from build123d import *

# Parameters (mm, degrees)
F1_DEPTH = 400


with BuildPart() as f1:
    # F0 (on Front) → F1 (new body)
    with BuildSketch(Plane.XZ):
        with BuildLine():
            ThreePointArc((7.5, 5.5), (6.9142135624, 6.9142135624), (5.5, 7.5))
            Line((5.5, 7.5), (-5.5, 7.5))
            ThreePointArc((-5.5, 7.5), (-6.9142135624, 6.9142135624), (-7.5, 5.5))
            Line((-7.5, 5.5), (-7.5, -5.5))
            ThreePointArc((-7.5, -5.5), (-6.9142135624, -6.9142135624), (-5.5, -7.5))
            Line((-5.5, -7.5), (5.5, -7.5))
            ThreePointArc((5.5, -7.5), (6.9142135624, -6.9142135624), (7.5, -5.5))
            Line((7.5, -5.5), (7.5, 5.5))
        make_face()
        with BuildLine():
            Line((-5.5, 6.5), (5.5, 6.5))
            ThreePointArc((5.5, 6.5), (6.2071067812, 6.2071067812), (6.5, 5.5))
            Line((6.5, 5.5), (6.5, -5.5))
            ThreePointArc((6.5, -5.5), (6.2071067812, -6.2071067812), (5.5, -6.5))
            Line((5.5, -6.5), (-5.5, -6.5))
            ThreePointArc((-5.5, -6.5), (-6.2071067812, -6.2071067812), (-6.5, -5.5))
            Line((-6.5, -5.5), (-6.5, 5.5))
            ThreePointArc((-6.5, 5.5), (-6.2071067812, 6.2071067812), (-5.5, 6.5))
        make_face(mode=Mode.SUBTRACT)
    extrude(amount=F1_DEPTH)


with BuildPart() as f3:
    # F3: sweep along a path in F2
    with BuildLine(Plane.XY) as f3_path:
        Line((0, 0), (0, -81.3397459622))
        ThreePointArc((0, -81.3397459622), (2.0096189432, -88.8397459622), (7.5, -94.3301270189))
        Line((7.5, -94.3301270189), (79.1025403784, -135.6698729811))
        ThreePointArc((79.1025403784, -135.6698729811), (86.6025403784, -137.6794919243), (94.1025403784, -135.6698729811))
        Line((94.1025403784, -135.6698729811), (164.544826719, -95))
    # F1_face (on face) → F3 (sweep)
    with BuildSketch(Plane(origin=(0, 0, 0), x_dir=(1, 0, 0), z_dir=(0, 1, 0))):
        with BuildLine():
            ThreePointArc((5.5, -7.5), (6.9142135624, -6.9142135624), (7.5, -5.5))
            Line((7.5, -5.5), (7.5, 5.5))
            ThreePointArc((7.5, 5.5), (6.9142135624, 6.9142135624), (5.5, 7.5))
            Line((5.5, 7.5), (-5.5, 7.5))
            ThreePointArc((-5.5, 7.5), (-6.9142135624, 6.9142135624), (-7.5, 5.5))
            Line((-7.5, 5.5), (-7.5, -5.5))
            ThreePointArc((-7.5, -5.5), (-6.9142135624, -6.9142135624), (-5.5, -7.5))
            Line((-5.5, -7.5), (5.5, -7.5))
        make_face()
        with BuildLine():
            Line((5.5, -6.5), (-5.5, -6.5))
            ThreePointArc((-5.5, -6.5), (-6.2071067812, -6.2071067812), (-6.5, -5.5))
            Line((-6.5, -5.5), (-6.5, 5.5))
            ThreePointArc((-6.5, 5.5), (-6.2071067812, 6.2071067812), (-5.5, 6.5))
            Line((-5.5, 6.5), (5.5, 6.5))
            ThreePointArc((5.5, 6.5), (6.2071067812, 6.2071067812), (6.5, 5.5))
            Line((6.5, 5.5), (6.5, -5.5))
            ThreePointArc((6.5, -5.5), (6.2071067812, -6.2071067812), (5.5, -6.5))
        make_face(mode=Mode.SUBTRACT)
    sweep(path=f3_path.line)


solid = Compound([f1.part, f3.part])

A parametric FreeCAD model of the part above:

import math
import FreeCAD as App
import Part
import Sketcher

V = App.Vector
Q = App.Units.Quantity

doc = App.newDocument("Part")
body = doc.addObject("PartDesign::Body", "Body")

sketch1 = body.newObject("Sketcher::SketchObject", "Sketch")
sketch1.AttachmentSupport = (doc.getObject("XZ_Plane"), [""])
sketch1.MapMode = "FlatFace"
sketch1.addGeometry(Part.ArcOfCircle(Part.Circle(V(5.5, 5.5, 0), V(0, 0, 1), 2), math.radians(0), math.radians(90)), False)
sketch1.addGeometry(Part.LineSegment(V(5.5, 7.5, 0), V(-5.5, 7.5, 0)), False)
sketch1.addGeometry(Part.ArcOfCircle(Part.Circle(V(-5.5, 5.5, 0), V(0, 0, 1), 2), math.radians(90), math.radians(180)), False)
sketch1.addGeometry(Part.LineSegment(V(-7.5, 5.5, 0), V(-7.5, -5.5, 0)), False)
sketch1.addGeometry(Part.ArcOfCircle(Part.Circle(V(-5.5, -5.5, 0), V(0, 0, 1), 2), math.radians(180), math.radians(270)), False)
sketch1.addGeometry(Part.LineSegment(V(-5.5, -7.5, 0), V(5.5, -7.5, 0)), False)
sketch1.addGeometry(Part.ArcOfCircle(Part.Circle(V(5.5, -5.5, 0), V(0, 0, 1), 2), math.radians(-90), math.radians(0)), False)
sketch1.addGeometry(Part.LineSegment(V(7.5, -5.5, 0), V(7.5, 5.5, 0)), False)
sketch1.addGeometry(Part.ArcOfCircle(Part.Circle(V(-5.5, 5.5, 0), V(0, 0, 1), 1), math.radians(90), math.radians(180)), False)
sketch1.addGeometry(Part.LineSegment(V(-5.5, 6.5, 0), V(5.5, 6.5, 0)), False)
sketch1.addGeometry(Part.ArcOfCircle(Part.Circle(V(5.5, 5.5, 0), V(0, 0, 1), 1), math.radians(0), math.radians(90)), False)
sketch1.addGeometry(Part.LineSegment(V(6.5, 5.5, 0), V(6.5, -5.5, 0)), False)
sketch1.addGeometry(Part.ArcOfCircle(Part.Circle(V(5.5, -5.5, 0), V(0, 0, 1), 1), math.radians(-90), math.radians(0)), False)
sketch1.addGeometry(Part.LineSegment(V(5.5, -6.5, 0), V(-5.5, -6.5, 0)), False)
sketch1.addGeometry(Part.ArcOfCircle(Part.Circle(V(-5.5, -5.5, 0), V(0, 0, 1), 1), math.radians(180), math.radians(270)), False)
sketch1.addGeometry(Part.LineSegment(V(-6.5, -5.5, 0), V(-6.5, 5.5, 0)), False)
sketch1.addConstraint(Sketcher.Constraint("Tangent", 0, 2, 1, 1))
sketch1.addConstraint(Sketcher.Constraint("Tangent", 1, 2, 2, 1))
sketch1.addConstraint(Sketcher.Constraint("Tangent", 2, 2, 3, 1))
sketch1.addConstraint(Sketcher.Constraint("Tangent", 3, 2, 4, 1))
sketch1.addConstraint(Sketcher.Constraint("Tangent", 4, 2, 5, 1))
sketch1.addConstraint(Sketcher.Constraint("Tangent", 5, 2, 6, 1))
sketch1.addConstraint(Sketcher.Constraint("Tangent", 6, 2, 7, 1))
sketch1.addConstraint(Sketcher.Constraint("Tangent", 7, 2, 0, 1))
sketch1.addConstraint(Sketcher.Constraint("Tangent", 8, 1, 9, 1))
sketch1.addConstraint(Sketcher.Constraint("Tangent", 9, 2, 10, 2))
sketch1.addConstraint(Sketcher.Constraint("Tangent", 10, 1, 11, 1))
sketch1.addConstraint(Sketcher.Constraint("Tangent", 11, 2, 12, 2))
sketch1.addConstraint(Sketcher.Constraint("Tangent", 12, 1, 13, 1))
sketch1.addConstraint(Sketcher.Constraint("Tangent", 13, 2, 14, 2))
sketch1.addConstraint(Sketcher.Constraint("Tangent", 14, 1, 15, 1))
sketch1.addConstraint(Sketcher.Constraint("Tangent", 15, 2, 8, 2))
sketch1.addConstraint(Sketcher.Constraint("Horizontal", 1))
sketch1.addConstraint(Sketcher.Constraint("Vertical", 3))
sketch1.addConstraint(Sketcher.Constraint("Horizontal", 5))
sketch1.addConstraint(Sketcher.Constraint("Vertical", 7))
sketch1.addConstraint(Sketcher.Constraint("Horizontal", 9))
sketch1.addConstraint(Sketcher.Constraint("Vertical", 11))
sketch1.addConstraint(Sketcher.Constraint("Horizontal", 13))
sketch1.addConstraint(Sketcher.Constraint("Vertical", 15))
sketch1.addConstraint(Sketcher.Constraint("Coincident", 8, 3, 2, 3))
sketch1.addConstraint(Sketcher.Constraint("Coincident", 10, 3, 0, 3))
sketch1.addConstraint(Sketcher.Constraint("Coincident", 12, 3, 6, 3))
sketch1.addConstraint(Sketcher.Constraint("Equal", 0, 2))
sketch1.addConstraint(Sketcher.Constraint("Equal", 2, 4))
sketch1.addConstraint(Sketcher.Constraint("Equal", 4, 6))
sketch1.addConstraint(Sketcher.Constraint("Equal", 12, 14))
sketch1.addConstraint(Sketcher.Constraint("Symmetric", 0, 3, 4, 3, -1, 1))
sketch1.addConstraint(Sketcher.Constraint("Equal", 13, 3))
sketch1.addConstraint(Sketcher.Constraint("Radius", 0, 2.0))
sketch1.addConstraint(Sketcher.Constraint("Radius", 8, 1.0))
sketch1.addConstraint(Sketcher.Constraint("DistanceX", 1, 2, 1, 1, 11.0))
pad1 = body.newObject("PartDesign::Pad", "Pad")
pad1.Profile = sketch1
pad1.Length = 400
body2 = doc.addObject("PartDesign::Body", "Body001")

sketch2 = body2.newObject("Sketcher::SketchObject", "Sketch001")
sketch2.AttachmentSupport = (doc.getObject("XZ_Plane001"), [""])
sketch2.MapMode = "FlatFace"
sketch2.addGeometry(Part.ArcOfCircle(Part.Circle(V(5.5, 5.5, 0), V(0, 0, 1), 2), math.radians(0), math.radians(90)), False)
sketch2.addGeometry(Part.LineSegment(V(7.5, 5.5, 0), V(7.5, -5.5, 0)), False)
sketch2.addGeometry(Part.ArcOfCircle(Part.Circle(V(5.5, -5.5, 0), V(0, 0, 1), 2), math.radians(-90), math.radians(0)), False)
sketch2.addGeometry(Part.LineSegment(V(5.5, -7.5, 0), V(-5.5, -7.5, 0)), False)
sketch2.addGeometry(Part.ArcOfCircle(Part.Circle(V(-5.5, -5.5, 0), V(0, 0, 1), 2), math.radians(180), math.radians(270)), False)
sketch2.addGeometry(Part.LineSegment(V(-7.5, -5.5, 0), V(-7.5, 5.5, 0)), False)
sketch2.addGeometry(Part.ArcOfCircle(Part.Circle(V(-5.5, 5.5, 0), V(0, 0, 1), 2), math.radians(90), math.radians(180)), False)
sketch2.addGeometry(Part.LineSegment(V(-5.5, 7.5, 0), V(5.5, 7.5, 0)), False)
sketch2.addGeometry(Part.ArcOfCircle(Part.Circle(V(5.5, 5.5, 0), V(0, 0, 1), 1), math.radians(0), math.radians(90)), False)
sketch2.addGeometry(Part.LineSegment(V(5.5, 6.5, 0), V(-5.5, 6.5, 0)), False)
sketch2.addGeometry(Part.ArcOfCircle(Part.Circle(V(-5.5, 5.5, 0), V(0, 0, 1), 1), math.radians(90), math.radians(180)), False)
sketch2.addGeometry(Part.LineSegment(V(-6.5, 5.5, 0), V(-6.5, -5.5, 0)), False)
sketch2.addGeometry(Part.ArcOfCircle(Part.Circle(V(-5.5, -5.5, 0), V(0, 0, 1), 1), math.radians(180), math.radians(270)), False)
sketch2.addGeometry(Part.LineSegment(V(-5.5, -6.5, 0), V(5.5, -6.5, 0)), False)
sketch2.addGeometry(Part.ArcOfCircle(Part.Circle(V(5.5, -5.5, 0), V(0, 0, 1), 1), math.radians(-90), math.radians(0)), False)
sketch2.addGeometry(Part.LineSegment(V(6.5, -5.5, 0), V(6.5, 5.5, 0)), False)
sketch2.addConstraint(Sketcher.Constraint("Tangent", 0, 1, 1, 1))
sketch2.addConstraint(Sketcher.Constraint("Tangent", 1, 2, 2, 2))
sketch2.addConstraint(Sketcher.Constraint("Tangent", 2, 1, 3, 1))
sketch2.addConstraint(Sketcher.Constraint("Tangent", 3, 2, 4, 2))
sketch2.addConstraint(Sketcher.Constraint("Tangent", 4, 1, 5, 1))
sketch2.addConstraint(Sketcher.Constraint("Tangent", 5, 2, 6, 2))
sketch2.addConstraint(Sketcher.Constraint("Tangent", 6, 1, 7, 1))
sketch2.addConstraint(Sketcher.Constraint("Tangent", 7, 2, 0, 2))
sketch2.addConstraint(Sketcher.Constraint("Tangent", 8, 2, 9, 1))
sketch2.addConstraint(Sketcher.Constraint("Tangent", 9, 2, 10, 1))
sketch2.addConstraint(Sketcher.Constraint("Tangent", 10, 2, 11, 1))
sketch2.addConstraint(Sketcher.Constraint("Tangent", 11, 2, 12, 1))
sketch2.addConstraint(Sketcher.Constraint("Tangent", 12, 2, 13, 1))
sketch2.addConstraint(Sketcher.Constraint("Tangent", 13, 2, 14, 1))
sketch2.addConstraint(Sketcher.Constraint("Tangent", 14, 2, 15, 1))
sketch2.addConstraint(Sketcher.Constraint("Tangent", 15, 2, 8, 1))
sketch2.addConstraint(Sketcher.Constraint("Vertical", 1))
sketch2.addConstraint(Sketcher.Constraint("Horizontal", 3))
sketch2.addConstraint(Sketcher.Constraint("Vertical", 5))
sketch2.addConstraint(Sketcher.Constraint("Horizontal", 7))
sketch2.addConstraint(Sketcher.Constraint("Horizontal", 9))
sketch2.addConstraint(Sketcher.Constraint("Vertical", 11))
sketch2.addConstraint(Sketcher.Constraint("Horizontal", 13))
sketch2.addConstraint(Sketcher.Constraint("Vertical", 15))
sketch2.addConstraint(Sketcher.Constraint("Coincident", 8, 3, 0, 3))
sketch2.addConstraint(Sketcher.Constraint("Coincident", 10, 3, 6, 3))
sketch2.addConstraint(Sketcher.Constraint("Coincident", 12, 3, 4, 3))
sketch2.addConstraint(Sketcher.Constraint("Equal", 0, 2))
sketch2.addConstraint(Sketcher.Constraint("Equal", 2, 4))
sketch2.addConstraint(Sketcher.Constraint("Equal", 4, 6))
sketch2.addConstraint(Sketcher.Constraint("Equal", 12, 14))
sketch2.addConstraint(Sketcher.Constraint("Symmetric", 0, 3, 4, 3, -1, 1))
sketch2.addConstraint(Sketcher.Constraint("Equal", 13, 1))
sketch2.addConstraint(Sketcher.Constraint("Radius", 0, 2.0))
sketch2.addConstraint(Sketcher.Constraint("Radius", 8, 1.0))
sketch2.addConstraint(Sketcher.Constraint("DistanceX", 3, 2, 3, 1, 11.0))

sketch3 = body2.newObject("Sketcher::SketchObject", "Sketch002")
sketch3.AttachmentSupport = (doc.getObject("XY_Plane001"), [""])
sketch3.MapMode = "FlatFace"
sketch3.addGeometry(Part.LineSegment(V(0, 0, 0), V(0, -81.339746, 0)), False)
sketch3.addGeometry(Part.ArcOfCircle(Part.Circle(V(15, -81.339746, 0), V(0, 0, 1), 15), math.radians(180), math.radians(240)), False)
sketch3.addGeometry(Part.LineSegment(V(7.5, -94.330127, 0), V(79.10254, -135.669873, 0)), False)
sketch3.addGeometry(Part.ArcOfCircle(Part.Circle(V(86.60254, -122.679492, 0), V(0, 0, 1), 15), math.radians(-120), math.radians(-60)), False)
sketch3.addGeometry(Part.LineSegment(V(94.10254, -135.669873, 0), V(164.544827, -95, 0)), False)
sketch3.addConstraint(Sketcher.Constraint("Tangent", 0, 2, 1, 1))
sketch3.addConstraint(Sketcher.Constraint("Tangent", 1, 2, 2, 1))
sketch3.addConstraint(Sketcher.Constraint("Tangent", 2, 2, 3, 1))
sketch3.addConstraint(Sketcher.Constraint("Tangent", 3, 2, 4, 1))
sketch3.addConstraint(Sketcher.Constraint("Vertical", 0))
sketch3.addConstraint(Sketcher.Constraint("Coincident", 0, 1, -1, 1))
sketch3.addConstraint(Sketcher.Constraint("Equal", 1, 3))
sketch3.addConstraint(Sketcher.Constraint("Horizontal", 2, 2, 3, 2))
sketch3.addConstraint(Sketcher.Constraint("Radius", 1, 15.0))
sketch3.addConstraint(Sketcher.Constraint("Angle", 2, Q("-30 deg")))
sketch3.addConstraint(Sketcher.Constraint("DistanceY", 4, 2, -1, 1, 95.0))
sketch3.addConstraint(Sketcher.Constraint("Distance", 2, 82.679492))
sketch3.addConstraint(Sketcher.Constraint("DistanceY", 0, 2, 0, 1, 81.339746))
doc.recompute()

additivepipe = body2.newObject("PartDesign::AdditivePipe", "AdditivePipe")
additivepipe.Profile = sketch2
additivepipe.Spine = (sketch3, ["Edge1", "Edge2", "Edge3", "Edge4", "Edge5"])

doc.recompute()
